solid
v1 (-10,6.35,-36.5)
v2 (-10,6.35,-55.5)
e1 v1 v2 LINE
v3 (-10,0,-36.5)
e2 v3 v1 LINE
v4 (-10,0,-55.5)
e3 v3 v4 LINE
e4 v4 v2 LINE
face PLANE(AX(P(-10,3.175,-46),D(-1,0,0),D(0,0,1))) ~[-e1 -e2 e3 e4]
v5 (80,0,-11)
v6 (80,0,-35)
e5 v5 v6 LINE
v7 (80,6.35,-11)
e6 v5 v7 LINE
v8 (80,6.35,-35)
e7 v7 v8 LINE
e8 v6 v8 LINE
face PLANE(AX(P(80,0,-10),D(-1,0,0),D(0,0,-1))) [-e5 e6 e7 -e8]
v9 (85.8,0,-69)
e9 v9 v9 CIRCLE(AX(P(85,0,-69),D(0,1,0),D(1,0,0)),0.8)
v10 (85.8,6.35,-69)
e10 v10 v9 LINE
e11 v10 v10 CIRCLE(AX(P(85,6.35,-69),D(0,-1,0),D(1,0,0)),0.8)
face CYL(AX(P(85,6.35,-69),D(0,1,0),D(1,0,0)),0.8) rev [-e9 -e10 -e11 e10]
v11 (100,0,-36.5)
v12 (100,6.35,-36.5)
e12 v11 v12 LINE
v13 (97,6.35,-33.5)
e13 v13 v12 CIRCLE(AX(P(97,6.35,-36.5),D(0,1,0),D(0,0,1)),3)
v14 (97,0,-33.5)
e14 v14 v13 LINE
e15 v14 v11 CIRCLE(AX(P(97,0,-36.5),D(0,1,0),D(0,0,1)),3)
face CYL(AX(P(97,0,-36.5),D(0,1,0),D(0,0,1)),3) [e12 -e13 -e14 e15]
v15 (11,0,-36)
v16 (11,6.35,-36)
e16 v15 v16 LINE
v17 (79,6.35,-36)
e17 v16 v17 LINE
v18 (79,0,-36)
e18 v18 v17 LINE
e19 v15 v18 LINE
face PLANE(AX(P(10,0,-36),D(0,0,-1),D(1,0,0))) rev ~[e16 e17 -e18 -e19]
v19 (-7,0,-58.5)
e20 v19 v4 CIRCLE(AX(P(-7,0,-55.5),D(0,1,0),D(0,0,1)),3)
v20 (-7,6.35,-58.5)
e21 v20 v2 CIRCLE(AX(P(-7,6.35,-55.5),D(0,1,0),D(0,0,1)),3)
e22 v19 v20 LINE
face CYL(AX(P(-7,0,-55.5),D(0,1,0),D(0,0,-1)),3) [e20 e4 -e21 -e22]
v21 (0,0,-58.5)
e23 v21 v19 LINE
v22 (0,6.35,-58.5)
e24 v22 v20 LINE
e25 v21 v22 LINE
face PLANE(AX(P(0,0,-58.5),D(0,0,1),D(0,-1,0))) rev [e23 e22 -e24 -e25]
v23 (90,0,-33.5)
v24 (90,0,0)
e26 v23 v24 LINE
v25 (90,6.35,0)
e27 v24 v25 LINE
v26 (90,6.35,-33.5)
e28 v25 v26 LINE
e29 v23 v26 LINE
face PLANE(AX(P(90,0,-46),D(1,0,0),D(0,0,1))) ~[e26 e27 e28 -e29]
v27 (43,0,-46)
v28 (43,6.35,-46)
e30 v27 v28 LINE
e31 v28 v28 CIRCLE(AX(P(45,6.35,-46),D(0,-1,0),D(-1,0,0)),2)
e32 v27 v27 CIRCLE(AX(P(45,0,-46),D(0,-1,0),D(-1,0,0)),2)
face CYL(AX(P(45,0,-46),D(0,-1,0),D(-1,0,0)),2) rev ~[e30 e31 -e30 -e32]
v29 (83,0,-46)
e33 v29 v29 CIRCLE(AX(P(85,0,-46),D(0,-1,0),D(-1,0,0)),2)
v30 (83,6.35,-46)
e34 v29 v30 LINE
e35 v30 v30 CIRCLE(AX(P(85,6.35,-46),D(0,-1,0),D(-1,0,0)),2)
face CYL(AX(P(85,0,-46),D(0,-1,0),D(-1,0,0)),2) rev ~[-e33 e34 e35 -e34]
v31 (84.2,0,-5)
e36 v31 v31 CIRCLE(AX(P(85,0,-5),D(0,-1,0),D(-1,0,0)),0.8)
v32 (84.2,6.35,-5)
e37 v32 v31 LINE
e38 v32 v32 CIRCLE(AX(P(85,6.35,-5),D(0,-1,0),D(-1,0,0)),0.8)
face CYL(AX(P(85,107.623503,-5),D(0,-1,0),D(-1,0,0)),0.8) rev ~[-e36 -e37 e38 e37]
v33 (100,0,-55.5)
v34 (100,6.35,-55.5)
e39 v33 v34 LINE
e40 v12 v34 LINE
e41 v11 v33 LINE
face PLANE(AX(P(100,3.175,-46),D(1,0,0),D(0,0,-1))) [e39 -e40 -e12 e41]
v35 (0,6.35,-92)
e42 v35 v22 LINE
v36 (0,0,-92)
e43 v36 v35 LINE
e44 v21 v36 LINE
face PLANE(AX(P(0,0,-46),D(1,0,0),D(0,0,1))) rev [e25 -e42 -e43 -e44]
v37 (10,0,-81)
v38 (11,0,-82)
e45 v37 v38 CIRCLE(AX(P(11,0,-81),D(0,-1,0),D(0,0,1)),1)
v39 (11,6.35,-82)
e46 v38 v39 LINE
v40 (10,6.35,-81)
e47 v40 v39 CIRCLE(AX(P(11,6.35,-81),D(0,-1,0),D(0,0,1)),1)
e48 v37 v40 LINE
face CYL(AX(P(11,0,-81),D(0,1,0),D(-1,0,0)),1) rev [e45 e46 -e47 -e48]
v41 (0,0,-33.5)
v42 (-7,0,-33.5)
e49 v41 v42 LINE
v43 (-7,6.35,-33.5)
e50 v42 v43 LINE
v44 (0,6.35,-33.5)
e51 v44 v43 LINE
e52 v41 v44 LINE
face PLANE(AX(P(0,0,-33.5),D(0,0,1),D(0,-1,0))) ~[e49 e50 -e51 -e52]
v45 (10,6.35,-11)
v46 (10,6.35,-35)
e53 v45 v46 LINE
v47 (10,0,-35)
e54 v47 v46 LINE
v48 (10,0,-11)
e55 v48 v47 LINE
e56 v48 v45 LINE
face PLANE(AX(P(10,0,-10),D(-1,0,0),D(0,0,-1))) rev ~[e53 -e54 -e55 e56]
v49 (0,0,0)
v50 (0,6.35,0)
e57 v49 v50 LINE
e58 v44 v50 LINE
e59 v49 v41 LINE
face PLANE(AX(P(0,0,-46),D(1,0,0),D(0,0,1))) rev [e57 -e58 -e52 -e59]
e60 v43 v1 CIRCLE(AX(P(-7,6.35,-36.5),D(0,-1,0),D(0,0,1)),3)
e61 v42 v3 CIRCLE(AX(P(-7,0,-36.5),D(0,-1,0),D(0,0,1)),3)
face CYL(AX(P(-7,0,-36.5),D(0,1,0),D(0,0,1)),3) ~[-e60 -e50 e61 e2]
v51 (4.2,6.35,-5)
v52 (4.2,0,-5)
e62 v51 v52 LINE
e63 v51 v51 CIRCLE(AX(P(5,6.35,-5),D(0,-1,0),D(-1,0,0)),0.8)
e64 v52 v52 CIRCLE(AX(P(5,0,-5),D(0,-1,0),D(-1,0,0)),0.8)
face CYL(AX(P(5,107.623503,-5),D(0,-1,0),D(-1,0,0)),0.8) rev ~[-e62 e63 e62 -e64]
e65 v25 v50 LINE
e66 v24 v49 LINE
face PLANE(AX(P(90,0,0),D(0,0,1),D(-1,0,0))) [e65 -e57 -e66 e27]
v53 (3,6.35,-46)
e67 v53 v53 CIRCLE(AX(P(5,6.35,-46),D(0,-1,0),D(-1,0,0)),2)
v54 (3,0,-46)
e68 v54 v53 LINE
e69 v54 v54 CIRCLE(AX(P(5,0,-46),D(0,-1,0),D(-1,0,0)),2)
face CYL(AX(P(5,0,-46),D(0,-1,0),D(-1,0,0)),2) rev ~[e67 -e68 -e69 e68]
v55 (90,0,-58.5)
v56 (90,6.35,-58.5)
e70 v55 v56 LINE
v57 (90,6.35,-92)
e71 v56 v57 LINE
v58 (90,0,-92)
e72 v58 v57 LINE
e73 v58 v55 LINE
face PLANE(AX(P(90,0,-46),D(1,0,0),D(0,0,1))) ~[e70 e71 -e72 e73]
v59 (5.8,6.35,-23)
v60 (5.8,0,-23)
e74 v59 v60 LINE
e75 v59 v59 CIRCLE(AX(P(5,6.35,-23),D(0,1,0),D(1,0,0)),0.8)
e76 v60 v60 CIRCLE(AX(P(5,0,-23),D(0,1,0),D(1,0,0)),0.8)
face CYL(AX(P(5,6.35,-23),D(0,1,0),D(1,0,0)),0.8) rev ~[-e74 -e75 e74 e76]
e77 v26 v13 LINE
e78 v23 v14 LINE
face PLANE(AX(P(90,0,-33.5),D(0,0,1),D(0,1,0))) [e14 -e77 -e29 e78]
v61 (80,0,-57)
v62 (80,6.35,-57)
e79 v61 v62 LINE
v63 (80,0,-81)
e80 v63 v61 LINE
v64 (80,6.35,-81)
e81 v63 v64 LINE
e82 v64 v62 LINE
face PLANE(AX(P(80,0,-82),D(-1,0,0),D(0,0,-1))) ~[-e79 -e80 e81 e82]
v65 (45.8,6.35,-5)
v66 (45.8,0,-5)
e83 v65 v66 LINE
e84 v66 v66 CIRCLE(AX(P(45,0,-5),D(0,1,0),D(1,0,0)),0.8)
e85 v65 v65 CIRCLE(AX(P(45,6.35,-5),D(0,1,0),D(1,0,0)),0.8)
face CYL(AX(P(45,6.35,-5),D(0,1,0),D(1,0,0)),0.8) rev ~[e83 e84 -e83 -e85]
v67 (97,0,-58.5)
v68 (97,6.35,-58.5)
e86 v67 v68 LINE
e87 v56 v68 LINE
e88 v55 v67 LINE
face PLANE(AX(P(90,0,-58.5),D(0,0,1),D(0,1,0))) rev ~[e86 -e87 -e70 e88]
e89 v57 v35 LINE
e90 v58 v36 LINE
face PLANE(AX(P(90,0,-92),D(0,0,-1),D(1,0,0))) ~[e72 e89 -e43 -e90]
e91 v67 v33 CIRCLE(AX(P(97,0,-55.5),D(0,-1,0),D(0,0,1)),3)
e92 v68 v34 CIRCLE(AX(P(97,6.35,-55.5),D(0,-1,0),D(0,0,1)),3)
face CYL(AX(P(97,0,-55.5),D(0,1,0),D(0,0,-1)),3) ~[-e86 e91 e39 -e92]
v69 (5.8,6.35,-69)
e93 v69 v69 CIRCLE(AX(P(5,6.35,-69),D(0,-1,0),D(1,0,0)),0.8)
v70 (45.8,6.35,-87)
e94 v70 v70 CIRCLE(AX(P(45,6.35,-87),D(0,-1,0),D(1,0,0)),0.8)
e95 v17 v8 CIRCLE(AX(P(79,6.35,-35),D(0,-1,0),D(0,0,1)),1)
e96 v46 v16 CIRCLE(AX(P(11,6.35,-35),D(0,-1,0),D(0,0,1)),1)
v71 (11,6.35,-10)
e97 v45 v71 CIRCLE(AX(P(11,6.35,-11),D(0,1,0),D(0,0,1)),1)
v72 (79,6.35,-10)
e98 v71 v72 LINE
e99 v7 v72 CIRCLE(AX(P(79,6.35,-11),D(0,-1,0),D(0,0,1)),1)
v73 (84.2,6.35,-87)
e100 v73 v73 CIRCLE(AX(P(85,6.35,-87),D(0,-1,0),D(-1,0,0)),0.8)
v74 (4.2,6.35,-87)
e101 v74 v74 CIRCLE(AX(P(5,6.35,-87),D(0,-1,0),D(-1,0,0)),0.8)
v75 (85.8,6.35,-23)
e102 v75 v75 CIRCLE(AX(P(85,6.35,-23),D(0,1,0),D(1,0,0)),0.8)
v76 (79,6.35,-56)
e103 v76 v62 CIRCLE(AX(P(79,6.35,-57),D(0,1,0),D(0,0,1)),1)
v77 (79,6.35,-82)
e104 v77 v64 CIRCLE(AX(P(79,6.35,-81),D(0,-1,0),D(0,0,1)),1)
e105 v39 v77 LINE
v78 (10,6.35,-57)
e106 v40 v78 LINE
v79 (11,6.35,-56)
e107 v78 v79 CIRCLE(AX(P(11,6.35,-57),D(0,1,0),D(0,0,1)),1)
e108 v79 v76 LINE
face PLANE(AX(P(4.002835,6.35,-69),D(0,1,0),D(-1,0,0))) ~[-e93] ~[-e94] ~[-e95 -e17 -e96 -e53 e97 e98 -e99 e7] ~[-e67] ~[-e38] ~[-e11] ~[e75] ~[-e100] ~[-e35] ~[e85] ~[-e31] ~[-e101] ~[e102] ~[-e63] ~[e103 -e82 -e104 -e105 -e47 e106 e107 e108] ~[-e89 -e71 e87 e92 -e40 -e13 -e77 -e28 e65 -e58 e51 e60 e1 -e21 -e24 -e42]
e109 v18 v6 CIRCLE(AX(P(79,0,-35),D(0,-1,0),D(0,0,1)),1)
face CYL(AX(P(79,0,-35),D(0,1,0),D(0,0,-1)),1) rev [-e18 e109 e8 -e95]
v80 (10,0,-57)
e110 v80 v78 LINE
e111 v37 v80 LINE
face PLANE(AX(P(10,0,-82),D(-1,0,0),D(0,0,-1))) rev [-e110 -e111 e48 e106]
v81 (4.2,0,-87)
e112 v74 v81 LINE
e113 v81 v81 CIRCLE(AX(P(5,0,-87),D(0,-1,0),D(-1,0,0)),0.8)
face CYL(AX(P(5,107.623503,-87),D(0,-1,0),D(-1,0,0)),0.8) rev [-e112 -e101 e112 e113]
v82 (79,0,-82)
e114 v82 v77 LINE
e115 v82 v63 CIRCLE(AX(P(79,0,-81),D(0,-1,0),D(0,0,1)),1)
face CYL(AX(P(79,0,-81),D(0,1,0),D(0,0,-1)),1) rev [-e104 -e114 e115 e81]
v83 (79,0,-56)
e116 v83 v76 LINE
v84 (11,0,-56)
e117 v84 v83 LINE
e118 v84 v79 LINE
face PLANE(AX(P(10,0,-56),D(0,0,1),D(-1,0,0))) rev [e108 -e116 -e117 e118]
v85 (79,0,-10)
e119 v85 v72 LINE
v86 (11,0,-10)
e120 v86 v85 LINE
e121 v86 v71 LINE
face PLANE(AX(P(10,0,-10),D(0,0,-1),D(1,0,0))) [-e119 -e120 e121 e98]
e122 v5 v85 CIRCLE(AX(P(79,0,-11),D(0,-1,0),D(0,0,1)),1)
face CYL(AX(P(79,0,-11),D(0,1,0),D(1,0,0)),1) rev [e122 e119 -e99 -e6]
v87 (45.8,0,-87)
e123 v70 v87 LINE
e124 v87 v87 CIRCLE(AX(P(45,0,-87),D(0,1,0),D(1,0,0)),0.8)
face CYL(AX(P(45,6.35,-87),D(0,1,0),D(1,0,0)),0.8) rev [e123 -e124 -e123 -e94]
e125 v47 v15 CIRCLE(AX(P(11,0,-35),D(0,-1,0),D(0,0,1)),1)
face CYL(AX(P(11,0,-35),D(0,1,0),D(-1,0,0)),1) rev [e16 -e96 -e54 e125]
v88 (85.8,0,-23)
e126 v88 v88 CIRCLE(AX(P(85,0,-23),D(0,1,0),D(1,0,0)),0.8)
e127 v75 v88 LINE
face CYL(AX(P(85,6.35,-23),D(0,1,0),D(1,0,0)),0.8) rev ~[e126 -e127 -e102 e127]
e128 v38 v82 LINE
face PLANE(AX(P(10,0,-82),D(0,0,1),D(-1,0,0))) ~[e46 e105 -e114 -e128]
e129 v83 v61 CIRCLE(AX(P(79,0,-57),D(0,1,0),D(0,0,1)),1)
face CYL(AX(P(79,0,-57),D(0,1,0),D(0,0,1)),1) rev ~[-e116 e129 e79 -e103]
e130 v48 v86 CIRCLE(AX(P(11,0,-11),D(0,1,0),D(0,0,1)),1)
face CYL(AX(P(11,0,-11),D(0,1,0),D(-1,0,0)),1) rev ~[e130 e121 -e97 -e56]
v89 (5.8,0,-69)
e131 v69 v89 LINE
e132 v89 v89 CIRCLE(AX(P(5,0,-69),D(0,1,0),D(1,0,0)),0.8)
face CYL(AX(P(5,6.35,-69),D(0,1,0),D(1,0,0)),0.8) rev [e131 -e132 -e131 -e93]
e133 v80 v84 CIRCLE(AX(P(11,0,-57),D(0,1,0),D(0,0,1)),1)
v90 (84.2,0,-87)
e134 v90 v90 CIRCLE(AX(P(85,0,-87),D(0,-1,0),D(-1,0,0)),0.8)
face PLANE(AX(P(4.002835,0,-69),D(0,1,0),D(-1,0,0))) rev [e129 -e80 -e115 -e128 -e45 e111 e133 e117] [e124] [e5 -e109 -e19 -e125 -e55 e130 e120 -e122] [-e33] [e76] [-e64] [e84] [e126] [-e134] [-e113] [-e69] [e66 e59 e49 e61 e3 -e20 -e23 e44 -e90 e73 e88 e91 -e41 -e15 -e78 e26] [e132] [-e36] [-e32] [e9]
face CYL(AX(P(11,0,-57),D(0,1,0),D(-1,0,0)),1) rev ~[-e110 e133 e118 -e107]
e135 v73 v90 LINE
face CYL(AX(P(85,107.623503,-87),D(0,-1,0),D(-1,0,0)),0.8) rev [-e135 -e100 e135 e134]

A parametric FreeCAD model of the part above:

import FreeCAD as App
import Part
import Sketcher
from FreeCAD import Vector
Q = App.Units.Quantity


def edges_at(feature, points):
    """Names of the edges that pass closest to the given points."""
    edges = feature.Shape.Edges
    near = lambda p: min(range(len(edges)), key=lambda i: edges[i].distToShape(Part.Vertex(*p))[0])
    return sorted({f"Edge{near(p) + 1}" for p in points})


def add_polygon(sketch, points):
    """Adds a closed chain of lines whose ends are joined by coincident constraints."""
    first, n = sketch.GeometryCount, len(points)
    for a, b in zip(points, points[1:] + points[:1]):
        sketch.addGeometry(Part.LineSegment(App.Vector(*a, 0), App.Vector(*b, 0)), False)
    for i in range(n):
        sketch.addConstraint(Sketcher.Constraint("Coincident", first + i, 2, first + (i + 1) % n, 1))

doc = App.newDocument("Part")
body = doc.addObject("PartDesign::Body", "Body")

# Sketch on XZ plane
sketch1 = body.newObject("Sketcher::SketchObject", "Sketch")
sketch1.AttachmentSupport = (doc.getObject("XZ_Plane"), [""])
sketch1.MapMode = "FlatFace"
add_polygon(sketch1, [(90, -46), (0, -46), (0, 0), (90, 0)])  # lines 0-3
add_polygon(sketch1, [(10, -10), (10, -36), (80, -36), (80, -10)])  # lines 4-7
sketch1.addConstraint([
    Sketcher.Constraint("Horizontal", 0),
    Sketcher.Constraint("Vertical", 1),
    Sketcher.Constraint("Horizontal", 2),
    Sketcher.Constraint("Vertical", 3),
    Sketcher.Constraint("Vertical", 4),
    Sketcher.Constraint("Horizontal", 5),
    Sketcher.Constraint("Vertical", 6),
    Sketcher.Constraint("Horizontal", 7),
    Sketcher.Constraint("Coincident", 1, 2, -1, 1),
    Sketcher.Constraint("DistanceX", 0, 2, 0, 1, Q("90 mm")),
    Sketcher.Constraint("DistanceX", 5, 1, 5, 2, Q("70 mm")),
    Sketcher.Constraint("DistanceY", 1, 1, 1, 2, Q("46 mm")),
    Sketcher.Constraint("DistanceY", 4, 2, 4, 1, Q("26 mm")),
    Sketcher.Constraint("DistanceX", -1, 1, 4, 2, Q("10 mm")),
    Sketcher.Constraint("DistanceY", 4, 2, -1, 1, Q("36 mm")),
])
pad1 = body.newObject("PartDesign::Pad", "Pad")
pad1.Profile = sketch1
pad1.Length = 6.35
pad1.Reversed = True
doc.recompute()

fillet = body.newObject("PartDesign::Fillet", "Fillet")
fillet.Base = (pad1, edges_at(pad1, [
    (10, 3.175, -10),
    (80, 3.175, -10),
    (80, 3.175, -36),
    (10, 3.175, -36),
]))
fillet.Radius = 1

# Sketch on XZ plane
sketch2 = body.newObject("Sketcher::SketchObject", "Sketch001")
sketch2.AttachmentSupport = (doc.getObject("XZ_Plane"), [""])
sketch2.MapMode = "FlatFace"
sketch2.AttachmentOffset = App.Placement(Vector(0, 0, -6.35), App.Rotation())
sketch2.addGeometry([
    Part.Circle(Vector(85, -5, 0), Vector(0, 0, 1), 0.8),
    Part.Circle(Vector(5, -5, 0), Vector(0, 0, 1), 0.8),
], False)
sketch2.addConstraint([
    Sketcher.Constraint("Equal", 0, 1),
    Sketcher.Constraint("Horizontal", 0, 3, 1, 3),
    Sketcher.Constraint("Diameter", 0, Q("1.6 mm")),
    Sketcher.Constraint("DistanceX", -1, 1, 0, 3, Q("85 mm")),
    Sketcher.Constraint("DistanceY", 0, 3, -1, 1, Q("5 mm")),
    Sketcher.Constraint("DistanceX", -1, 1, 1, 3, Q("5 mm")),
])
doc.recompute()
hole = body.newObject("PartDesign::Hole", "Hole")
hole.Profile = sketch2
hole.ThreadType = "None"
hole.Diameter = 1.6
hole.DepthType = "ThroughAll"
hole.Reversed = True

# Sketch on XZ plane
sketch3 = body.newObject("Sketcher::SketchObject", "Sketch002")
sketch3.AttachmentSupport = (doc.getObject("XZ_Plane"), [""])
sketch3.MapMode = "FlatFace"
sketch3.AttachmentOffset = App.Placement(Vector(0, 0, -6.35), App.Rotation())
sketch3.addGeometry([
    Part.Circle(Vector(85, -23, 0), Vector(0, 0, 1), 0.8),
    Part.Circle(Vector(45, -5, 0), Vector(0, 0, 1), 0.8),
    Part.Circle(Vector(5, -23, 0), Vector(0, 0, 1), 0.8),
], False)
sketch3.addConstraint([
    Sketcher.Constraint("Equal", 0, 1),
    Sketcher.Constraint("Equal", 1, 2),
    Sketcher.Constraint("Horizontal", 0, 3, 2, 3),
    Sketcher.Constraint("Diameter", 0, Q("1.6 mm")),
    Sketcher.Constraint("DistanceX", -1, 1, 0, 3, Q("85 mm")),
    Sketcher.Constraint("DistanceY", 0, 3, -1, 1, Q("23 mm")),
    Sketcher.Constraint("DistanceX", -1, 1, 1, 3, Q("45 mm")),
    Sketcher.Constraint("DistanceY", 1, 3, -1, 1, Q("5 mm")),
    Sketcher.Constraint("DistanceX", -1, 1, 2, 3, Q("5 mm")),
])
pocket1 = body.newObject("PartDesign::Pocket", "Pocket")
pocket1.Profile = sketch3
pocket1.Type = "ThroughAll"
pocket1.Reversed = True
doc.recompute()

datumplane = body.newObject("PartDesign::Plane", "DatumPlane")
datumplane.AttachmentSupport = (doc.getObject("XY_Plane"), [""])
datumplane.MapMode = "FlatFace"
datumplane.AttachmentOffset = App.Placement(Vector(0, 0, -46), App.Rotation())
mirrored = body.newObject("PartDesign::Mirrored", "Mirrored")
mirrored.Originals = [pad1, hole]
mirrored.MirrorPlane = (datumplane, [""])
body.Tip = mirrored
doc.recompute()

fillet2 = body.newObject("PartDesign::Fillet", "Fillet001")
fillet2.Base = (mirrored, edges_at(mirrored, [
    (10, 3.175, -82),
    (80, 3.175, -82),
    (80, 3.175, -56),
    (10, 3.175, -56),
]))
fillet2.Radius = 1

# Sketch on YZ plane
sketch4 = body.newObject("Sketcher::SketchObject", "Sketch003")
sketch4.AttachmentSupport = (doc.getObject("YZ_Plane"), [""])
sketch4.MapMode = "FlatFace"
sketch4.AttachmentOffset = App.Placement(Vector(0, 0, 90), App.Rotation())
add_polygon(sketch4, [(6, -34), (0, -34), (0, -58), (6, -58)])  # lines 0-3
sketch4.addConstraint([
    Sketcher.Constraint("Horizontal", 0),
    Sketcher.Constraint("Vertical", 1),
    Sketcher.Constraint("Horizontal", 2),
    Sketcher.Constraint("Vertical", 3),
    Sketcher.Constraint("PointOnObject", 0, 2, -2),
    Sketcher.Constraint("DistanceY", 1, 2, 1, 1, Q("25 mm")),
    Sketcher.Constraint("DistanceX", 0, 2, 0, 1, Q("6.35 mm")),
    Sketcher.Constraint("DistanceY", 0, 2, -1, 1, Q("33.5 mm")),
])
pad2 = body.newObject("PartDesign::Pad", "Pad001")
pad2.Profile = sketch4
pad2.Length = 10
doc.recompute()

fillet3 = body.newObject("PartDesign::Fillet", "Fillet002")
fillet3.Base = (pad2, edges_at(pad2, [(100, 3.175, -58.5), (100, 3.175, -33.5)]))
fillet3.Radius = 3
doc.recompute()

datumplane2 = body.newObject("PartDesign::Plane", "DatumPlane001")
datumplane2.AttachmentSupport = (doc.getObject("YZ_Plane"), [""])
datumplane2.MapMode = "FlatFace"
datumplane2.AttachmentOffset = App.Placement(Vector(0, 0, 45), App.Rotation())
mirrored2 = body.newObject("PartDesign::Mirrored", "Mirrored001")
mirrored2.Originals = [pad2]
mirrored2.MirrorPlane = (datumplane2, [""])
body.Tip = mirrored2
doc.recompute()

fillet4 = body.newObject("PartDesign::Fillet", "Fillet003")
fillet4.Base = (mirrored2, edges_at(mirrored2, [(-10, 3.175, -58.5), (-10, 3.175, -33.5)]))
fillet4.Radius = 3
doc.recompute()

datumplane3 = body.newObject("PartDesign::Plane", "DatumPlane002")
datumplane3.AttachmentSupport = (doc.getObject("XY_Plane"), [""])
datumplane3.MapMode = "FlatFace"
datumplane3.AttachmentOffset = App.Placement(Vector(0, 0, -46), App.Rotation())
mirrored3 = body.newObject("PartDesign::Mirrored", "Mirrored002")
mirrored3.Originals = [pocket1]
mirrored3.MirrorPlane = (datumplane3, [""])
body.Tip = mirrored3

# Sketch on XZ plane
sketch5 = body.newObject("Sketcher::SketchObject", "Sketch004")
sketch5.AttachmentSupport = (doc.getObject("XZ_Plane"), [""])
sketch5.MapMode = "FlatFace"
sketch5.addGeometry([
    Part.Circle(Vector(45, -46, 0), Vector(0, 0, 1), 2),
    Part.Circle(Vector(85, -46, 0), Vector(0, 0, 1), 2),
    Part.Circle(Vector(5, -46, 0), Vector(0, 0, 1), 2),
], False)
sketch5.addConstraint([
    Sketcher.Constraint("Equal", 0, 1),
    Sketcher.Constraint("Equal", 1, 2),
    Sketcher.Constraint("Horizontal", 0, 3, 1, 3),
    Sketcher.Constraint("Horizontal", 1, 3, 2, 3),
    Sketcher.Constraint("Diameter", 0, Q("4 mm")),
    Sketcher.Constraint("DistanceX", -1, 1, 0, 3, Q("45 mm")),
    Sketcher.Constraint("DistanceY", 0, 3, -1, 1, Q("46 mm")),
    Sketcher.Constraint("DistanceX", -1, 1, 1, 3, Q("85 mm")),
    Sketcher.Constraint("DistanceX", -1, 1, 2, 3, Q("5 mm")),
])
pocket2 = body.newObject("PartDesign::Pocket", "Pocket001")
pocket2.Profile = sketch5
pocket2.Length = 10

doc.recompute()
